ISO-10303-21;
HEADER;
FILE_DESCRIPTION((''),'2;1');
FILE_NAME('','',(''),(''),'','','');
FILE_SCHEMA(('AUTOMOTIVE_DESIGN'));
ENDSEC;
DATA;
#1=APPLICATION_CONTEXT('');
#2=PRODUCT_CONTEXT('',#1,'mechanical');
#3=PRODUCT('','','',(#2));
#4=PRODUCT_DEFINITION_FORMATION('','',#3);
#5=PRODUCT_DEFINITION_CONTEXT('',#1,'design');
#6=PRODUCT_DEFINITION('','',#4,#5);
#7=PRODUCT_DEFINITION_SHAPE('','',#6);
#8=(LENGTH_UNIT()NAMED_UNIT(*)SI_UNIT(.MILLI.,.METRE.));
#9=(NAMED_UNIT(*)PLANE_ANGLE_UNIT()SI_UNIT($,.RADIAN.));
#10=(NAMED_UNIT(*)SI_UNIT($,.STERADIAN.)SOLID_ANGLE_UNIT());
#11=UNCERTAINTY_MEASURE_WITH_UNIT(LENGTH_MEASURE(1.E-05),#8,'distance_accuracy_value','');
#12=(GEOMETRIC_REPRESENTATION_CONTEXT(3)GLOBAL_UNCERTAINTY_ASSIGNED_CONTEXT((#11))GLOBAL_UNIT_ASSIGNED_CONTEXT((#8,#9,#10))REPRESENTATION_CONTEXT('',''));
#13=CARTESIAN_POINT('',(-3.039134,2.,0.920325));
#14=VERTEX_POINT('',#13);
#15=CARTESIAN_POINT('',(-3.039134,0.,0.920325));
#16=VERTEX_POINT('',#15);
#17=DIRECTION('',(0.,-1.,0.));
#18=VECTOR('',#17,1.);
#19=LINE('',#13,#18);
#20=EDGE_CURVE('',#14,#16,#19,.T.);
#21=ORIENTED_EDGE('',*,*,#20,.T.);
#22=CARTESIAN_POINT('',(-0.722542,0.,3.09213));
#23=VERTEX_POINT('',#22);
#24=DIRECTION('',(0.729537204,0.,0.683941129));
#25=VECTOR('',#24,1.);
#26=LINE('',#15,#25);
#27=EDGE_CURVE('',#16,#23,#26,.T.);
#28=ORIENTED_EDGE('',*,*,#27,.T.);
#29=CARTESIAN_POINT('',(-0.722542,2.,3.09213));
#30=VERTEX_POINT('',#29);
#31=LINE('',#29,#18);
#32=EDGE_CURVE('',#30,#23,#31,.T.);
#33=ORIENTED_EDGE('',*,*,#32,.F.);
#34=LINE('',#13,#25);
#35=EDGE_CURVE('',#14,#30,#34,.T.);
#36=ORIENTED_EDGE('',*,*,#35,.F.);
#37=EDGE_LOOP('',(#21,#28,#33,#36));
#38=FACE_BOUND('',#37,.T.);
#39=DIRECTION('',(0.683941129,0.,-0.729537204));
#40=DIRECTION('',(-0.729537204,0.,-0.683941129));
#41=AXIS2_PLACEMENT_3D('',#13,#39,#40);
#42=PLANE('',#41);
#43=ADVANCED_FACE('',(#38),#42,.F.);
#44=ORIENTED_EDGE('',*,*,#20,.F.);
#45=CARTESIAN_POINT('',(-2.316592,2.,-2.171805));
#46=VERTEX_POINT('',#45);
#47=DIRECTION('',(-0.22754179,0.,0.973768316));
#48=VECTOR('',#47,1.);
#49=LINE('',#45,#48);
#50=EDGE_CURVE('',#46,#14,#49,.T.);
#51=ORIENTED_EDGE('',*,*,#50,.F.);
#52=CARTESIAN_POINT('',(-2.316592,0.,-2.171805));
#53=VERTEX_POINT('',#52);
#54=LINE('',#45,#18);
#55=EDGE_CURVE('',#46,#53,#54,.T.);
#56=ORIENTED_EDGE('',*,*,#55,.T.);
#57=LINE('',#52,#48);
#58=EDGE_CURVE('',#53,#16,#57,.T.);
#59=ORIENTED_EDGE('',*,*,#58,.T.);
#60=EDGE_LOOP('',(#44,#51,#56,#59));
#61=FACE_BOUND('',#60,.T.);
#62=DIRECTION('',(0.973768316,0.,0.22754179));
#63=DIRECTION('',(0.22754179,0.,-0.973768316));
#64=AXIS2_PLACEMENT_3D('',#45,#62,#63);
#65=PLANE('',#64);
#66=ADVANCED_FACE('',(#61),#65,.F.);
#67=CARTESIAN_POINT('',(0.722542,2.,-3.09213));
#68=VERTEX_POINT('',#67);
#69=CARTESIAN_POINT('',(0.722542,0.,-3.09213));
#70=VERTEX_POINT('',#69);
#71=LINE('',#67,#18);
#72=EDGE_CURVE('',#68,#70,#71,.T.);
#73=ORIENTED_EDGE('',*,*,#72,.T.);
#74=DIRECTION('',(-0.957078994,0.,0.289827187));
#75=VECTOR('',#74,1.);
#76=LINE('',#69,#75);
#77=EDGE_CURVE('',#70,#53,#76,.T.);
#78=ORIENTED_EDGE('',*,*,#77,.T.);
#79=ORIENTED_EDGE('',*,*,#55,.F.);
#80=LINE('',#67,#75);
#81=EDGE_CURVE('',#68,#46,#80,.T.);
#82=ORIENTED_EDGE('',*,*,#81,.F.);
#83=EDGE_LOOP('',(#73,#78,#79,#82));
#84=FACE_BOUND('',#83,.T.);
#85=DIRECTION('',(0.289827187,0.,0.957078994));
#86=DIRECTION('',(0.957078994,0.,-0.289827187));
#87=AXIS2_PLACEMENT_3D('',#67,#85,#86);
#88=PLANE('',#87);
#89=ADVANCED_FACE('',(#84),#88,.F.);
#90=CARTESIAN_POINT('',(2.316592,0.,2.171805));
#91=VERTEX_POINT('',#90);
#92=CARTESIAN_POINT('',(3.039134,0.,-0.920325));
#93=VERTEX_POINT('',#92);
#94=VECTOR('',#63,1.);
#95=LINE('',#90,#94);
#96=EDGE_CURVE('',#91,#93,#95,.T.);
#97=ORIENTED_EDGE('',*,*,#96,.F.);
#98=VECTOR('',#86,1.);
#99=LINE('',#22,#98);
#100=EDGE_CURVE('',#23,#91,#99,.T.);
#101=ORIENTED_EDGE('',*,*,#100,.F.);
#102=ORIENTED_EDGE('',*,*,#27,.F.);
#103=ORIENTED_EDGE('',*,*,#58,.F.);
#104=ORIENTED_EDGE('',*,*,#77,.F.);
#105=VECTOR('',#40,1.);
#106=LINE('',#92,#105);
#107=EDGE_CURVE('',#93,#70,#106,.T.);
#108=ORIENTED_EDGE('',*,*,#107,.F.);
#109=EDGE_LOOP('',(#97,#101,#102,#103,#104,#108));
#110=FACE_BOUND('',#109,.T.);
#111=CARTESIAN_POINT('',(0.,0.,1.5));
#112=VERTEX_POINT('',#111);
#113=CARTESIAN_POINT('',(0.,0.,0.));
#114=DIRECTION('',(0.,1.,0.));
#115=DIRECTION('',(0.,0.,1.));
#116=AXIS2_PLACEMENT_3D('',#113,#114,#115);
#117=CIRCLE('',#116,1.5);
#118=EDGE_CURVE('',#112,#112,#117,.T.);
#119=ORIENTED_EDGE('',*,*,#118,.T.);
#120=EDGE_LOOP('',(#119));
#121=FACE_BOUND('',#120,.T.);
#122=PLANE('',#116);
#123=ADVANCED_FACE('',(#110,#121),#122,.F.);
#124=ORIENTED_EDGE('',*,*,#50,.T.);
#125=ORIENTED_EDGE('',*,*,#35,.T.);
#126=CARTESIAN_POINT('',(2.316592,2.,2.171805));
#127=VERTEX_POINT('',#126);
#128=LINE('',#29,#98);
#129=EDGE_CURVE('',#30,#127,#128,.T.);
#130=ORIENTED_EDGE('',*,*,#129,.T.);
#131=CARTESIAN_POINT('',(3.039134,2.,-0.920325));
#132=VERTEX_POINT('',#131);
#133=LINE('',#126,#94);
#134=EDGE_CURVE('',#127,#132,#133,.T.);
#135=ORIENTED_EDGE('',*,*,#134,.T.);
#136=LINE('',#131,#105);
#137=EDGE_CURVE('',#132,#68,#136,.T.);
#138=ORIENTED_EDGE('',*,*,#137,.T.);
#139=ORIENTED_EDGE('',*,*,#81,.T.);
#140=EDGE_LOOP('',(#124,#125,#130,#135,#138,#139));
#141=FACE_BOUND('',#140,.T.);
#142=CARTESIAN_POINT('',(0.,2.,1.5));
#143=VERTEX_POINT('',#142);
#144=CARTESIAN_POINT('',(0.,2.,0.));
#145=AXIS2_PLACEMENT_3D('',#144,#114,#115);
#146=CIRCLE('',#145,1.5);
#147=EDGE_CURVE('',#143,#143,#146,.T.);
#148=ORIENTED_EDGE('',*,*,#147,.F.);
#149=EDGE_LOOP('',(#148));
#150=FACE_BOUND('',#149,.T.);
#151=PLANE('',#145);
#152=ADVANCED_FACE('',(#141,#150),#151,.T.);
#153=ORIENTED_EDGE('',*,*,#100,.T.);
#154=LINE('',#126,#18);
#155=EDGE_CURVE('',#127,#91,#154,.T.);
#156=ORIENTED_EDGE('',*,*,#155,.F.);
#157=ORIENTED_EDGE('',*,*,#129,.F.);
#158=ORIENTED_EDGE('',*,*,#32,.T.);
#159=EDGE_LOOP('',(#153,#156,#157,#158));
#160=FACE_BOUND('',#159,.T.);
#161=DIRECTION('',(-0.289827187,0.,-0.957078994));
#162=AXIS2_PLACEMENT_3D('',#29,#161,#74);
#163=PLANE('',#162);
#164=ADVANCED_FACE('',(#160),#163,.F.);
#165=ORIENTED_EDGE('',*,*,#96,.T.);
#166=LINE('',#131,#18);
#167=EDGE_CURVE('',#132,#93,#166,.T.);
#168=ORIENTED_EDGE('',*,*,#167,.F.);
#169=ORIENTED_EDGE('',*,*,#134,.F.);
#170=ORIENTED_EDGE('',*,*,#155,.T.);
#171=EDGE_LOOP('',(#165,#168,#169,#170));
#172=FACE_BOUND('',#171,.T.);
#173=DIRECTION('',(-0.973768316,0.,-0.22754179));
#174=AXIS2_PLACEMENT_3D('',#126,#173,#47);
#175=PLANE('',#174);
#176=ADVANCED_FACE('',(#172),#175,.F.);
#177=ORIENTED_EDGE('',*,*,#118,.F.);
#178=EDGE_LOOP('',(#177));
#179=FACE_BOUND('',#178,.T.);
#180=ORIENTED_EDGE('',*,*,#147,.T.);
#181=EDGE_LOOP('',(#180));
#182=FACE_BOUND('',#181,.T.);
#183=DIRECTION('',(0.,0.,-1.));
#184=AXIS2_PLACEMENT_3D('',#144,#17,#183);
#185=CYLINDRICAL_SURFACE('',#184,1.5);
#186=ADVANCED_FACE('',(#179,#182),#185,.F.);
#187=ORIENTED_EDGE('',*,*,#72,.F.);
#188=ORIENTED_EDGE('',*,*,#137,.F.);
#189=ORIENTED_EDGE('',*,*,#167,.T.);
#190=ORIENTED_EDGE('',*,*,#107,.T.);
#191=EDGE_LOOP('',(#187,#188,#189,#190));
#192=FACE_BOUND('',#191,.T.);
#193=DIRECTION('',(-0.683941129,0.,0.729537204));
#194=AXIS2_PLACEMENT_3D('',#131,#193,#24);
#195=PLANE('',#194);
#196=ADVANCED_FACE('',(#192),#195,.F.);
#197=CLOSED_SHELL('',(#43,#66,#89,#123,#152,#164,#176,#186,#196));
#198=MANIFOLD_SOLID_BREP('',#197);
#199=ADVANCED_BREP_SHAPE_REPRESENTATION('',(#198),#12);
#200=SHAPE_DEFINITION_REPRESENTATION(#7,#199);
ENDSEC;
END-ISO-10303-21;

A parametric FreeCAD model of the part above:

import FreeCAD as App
import Part
import Sketcher

V = App.Vector
Q = App.Units.Quantity

doc = App.newDocument("Part")
body = doc.addObject("PartDesign::Body", "Body")

sketch1 = body.newObject("Sketcher::SketchObject", "Sketch")
sketch1.AttachmentSupport = (doc.getObject("XZ_Plane"), [""])
sketch1.MapMode = "FlatFace"
sketch1.addGeometry([
    Part.LineSegment(V(2.3, 2.2, 0), V(3, -0.9, 0)),
    Part.LineSegment(V(3, -0.9, 0), V(0.7, -3.1, 0)),
    Part.LineSegment(V(0.7, -3.1, 0), V(-2.3, -2.2, 0)),
    Part.LineSegment(V(-2.3, -2.2, 0), V(-3, 0.9, 0)),
    Part.LineSegment(V(-3, 0.9, 0), V(-0.7, 3.1, 0)),
    Part.LineSegment(V(-0.7, 3.1, 0), V(2.3, 2.2, 0)),
    Part.Circle(V(0, 0, 0), V(0, 0, 1), 1.5),
], False)
sketch1.addConstraint([
    Sketcher.Constraint("Coincident", 0, 2, 1, 1),
    Sketcher.Constraint("Coincident", 1, 2, 2, 1),
    Sketcher.Constraint("Coincident", 2, 2, 3, 1),
    Sketcher.Constraint("Coincident", 3, 2, 4, 1),
    Sketcher.Constraint("Coincident", 4, 2, 5, 1),
    Sketcher.Constraint("Coincident", 5, 2, 0, 1),
    Sketcher.Constraint("Coincident", 6, 3, -1, 1),
    Sketcher.Constraint("Symmetric", 0, 2, 3, 2, -1, 1),
    Sketcher.Constraint("Symmetric", 1, 2, 4, 2, -1, 1),
    Sketcher.Constraint("Symmetric", 2, 2, 5, 2, -1, 1),
    Sketcher.Constraint("Equal", 0, 1),
    Sketcher.Constraint("Equal", 1, 2),
    Sketcher.Constraint("Diameter", 6, Q("3 mm")),
    Sketcher.Constraint("DistanceY", 1, 2, -1, 1, Q("3.09213 mm")),
    Sketcher.Constraint("DistanceX", 2, 2, -1, 1, Q("2.316592 mm")),
    Sketcher.Constraint("DistanceX", 1, 2, 0, 2, Q("2.316592 mm")),
    Sketcher.Constraint("DistanceY", 2, 2, 0, 2, Q("1.25148 mm")),
])
pad1 = body.newObject("PartDesign::Pad", "Pad")
pad1.Profile = sketch1
pad1.Length = 2
pad1.Reversed = True

doc.recompute()
